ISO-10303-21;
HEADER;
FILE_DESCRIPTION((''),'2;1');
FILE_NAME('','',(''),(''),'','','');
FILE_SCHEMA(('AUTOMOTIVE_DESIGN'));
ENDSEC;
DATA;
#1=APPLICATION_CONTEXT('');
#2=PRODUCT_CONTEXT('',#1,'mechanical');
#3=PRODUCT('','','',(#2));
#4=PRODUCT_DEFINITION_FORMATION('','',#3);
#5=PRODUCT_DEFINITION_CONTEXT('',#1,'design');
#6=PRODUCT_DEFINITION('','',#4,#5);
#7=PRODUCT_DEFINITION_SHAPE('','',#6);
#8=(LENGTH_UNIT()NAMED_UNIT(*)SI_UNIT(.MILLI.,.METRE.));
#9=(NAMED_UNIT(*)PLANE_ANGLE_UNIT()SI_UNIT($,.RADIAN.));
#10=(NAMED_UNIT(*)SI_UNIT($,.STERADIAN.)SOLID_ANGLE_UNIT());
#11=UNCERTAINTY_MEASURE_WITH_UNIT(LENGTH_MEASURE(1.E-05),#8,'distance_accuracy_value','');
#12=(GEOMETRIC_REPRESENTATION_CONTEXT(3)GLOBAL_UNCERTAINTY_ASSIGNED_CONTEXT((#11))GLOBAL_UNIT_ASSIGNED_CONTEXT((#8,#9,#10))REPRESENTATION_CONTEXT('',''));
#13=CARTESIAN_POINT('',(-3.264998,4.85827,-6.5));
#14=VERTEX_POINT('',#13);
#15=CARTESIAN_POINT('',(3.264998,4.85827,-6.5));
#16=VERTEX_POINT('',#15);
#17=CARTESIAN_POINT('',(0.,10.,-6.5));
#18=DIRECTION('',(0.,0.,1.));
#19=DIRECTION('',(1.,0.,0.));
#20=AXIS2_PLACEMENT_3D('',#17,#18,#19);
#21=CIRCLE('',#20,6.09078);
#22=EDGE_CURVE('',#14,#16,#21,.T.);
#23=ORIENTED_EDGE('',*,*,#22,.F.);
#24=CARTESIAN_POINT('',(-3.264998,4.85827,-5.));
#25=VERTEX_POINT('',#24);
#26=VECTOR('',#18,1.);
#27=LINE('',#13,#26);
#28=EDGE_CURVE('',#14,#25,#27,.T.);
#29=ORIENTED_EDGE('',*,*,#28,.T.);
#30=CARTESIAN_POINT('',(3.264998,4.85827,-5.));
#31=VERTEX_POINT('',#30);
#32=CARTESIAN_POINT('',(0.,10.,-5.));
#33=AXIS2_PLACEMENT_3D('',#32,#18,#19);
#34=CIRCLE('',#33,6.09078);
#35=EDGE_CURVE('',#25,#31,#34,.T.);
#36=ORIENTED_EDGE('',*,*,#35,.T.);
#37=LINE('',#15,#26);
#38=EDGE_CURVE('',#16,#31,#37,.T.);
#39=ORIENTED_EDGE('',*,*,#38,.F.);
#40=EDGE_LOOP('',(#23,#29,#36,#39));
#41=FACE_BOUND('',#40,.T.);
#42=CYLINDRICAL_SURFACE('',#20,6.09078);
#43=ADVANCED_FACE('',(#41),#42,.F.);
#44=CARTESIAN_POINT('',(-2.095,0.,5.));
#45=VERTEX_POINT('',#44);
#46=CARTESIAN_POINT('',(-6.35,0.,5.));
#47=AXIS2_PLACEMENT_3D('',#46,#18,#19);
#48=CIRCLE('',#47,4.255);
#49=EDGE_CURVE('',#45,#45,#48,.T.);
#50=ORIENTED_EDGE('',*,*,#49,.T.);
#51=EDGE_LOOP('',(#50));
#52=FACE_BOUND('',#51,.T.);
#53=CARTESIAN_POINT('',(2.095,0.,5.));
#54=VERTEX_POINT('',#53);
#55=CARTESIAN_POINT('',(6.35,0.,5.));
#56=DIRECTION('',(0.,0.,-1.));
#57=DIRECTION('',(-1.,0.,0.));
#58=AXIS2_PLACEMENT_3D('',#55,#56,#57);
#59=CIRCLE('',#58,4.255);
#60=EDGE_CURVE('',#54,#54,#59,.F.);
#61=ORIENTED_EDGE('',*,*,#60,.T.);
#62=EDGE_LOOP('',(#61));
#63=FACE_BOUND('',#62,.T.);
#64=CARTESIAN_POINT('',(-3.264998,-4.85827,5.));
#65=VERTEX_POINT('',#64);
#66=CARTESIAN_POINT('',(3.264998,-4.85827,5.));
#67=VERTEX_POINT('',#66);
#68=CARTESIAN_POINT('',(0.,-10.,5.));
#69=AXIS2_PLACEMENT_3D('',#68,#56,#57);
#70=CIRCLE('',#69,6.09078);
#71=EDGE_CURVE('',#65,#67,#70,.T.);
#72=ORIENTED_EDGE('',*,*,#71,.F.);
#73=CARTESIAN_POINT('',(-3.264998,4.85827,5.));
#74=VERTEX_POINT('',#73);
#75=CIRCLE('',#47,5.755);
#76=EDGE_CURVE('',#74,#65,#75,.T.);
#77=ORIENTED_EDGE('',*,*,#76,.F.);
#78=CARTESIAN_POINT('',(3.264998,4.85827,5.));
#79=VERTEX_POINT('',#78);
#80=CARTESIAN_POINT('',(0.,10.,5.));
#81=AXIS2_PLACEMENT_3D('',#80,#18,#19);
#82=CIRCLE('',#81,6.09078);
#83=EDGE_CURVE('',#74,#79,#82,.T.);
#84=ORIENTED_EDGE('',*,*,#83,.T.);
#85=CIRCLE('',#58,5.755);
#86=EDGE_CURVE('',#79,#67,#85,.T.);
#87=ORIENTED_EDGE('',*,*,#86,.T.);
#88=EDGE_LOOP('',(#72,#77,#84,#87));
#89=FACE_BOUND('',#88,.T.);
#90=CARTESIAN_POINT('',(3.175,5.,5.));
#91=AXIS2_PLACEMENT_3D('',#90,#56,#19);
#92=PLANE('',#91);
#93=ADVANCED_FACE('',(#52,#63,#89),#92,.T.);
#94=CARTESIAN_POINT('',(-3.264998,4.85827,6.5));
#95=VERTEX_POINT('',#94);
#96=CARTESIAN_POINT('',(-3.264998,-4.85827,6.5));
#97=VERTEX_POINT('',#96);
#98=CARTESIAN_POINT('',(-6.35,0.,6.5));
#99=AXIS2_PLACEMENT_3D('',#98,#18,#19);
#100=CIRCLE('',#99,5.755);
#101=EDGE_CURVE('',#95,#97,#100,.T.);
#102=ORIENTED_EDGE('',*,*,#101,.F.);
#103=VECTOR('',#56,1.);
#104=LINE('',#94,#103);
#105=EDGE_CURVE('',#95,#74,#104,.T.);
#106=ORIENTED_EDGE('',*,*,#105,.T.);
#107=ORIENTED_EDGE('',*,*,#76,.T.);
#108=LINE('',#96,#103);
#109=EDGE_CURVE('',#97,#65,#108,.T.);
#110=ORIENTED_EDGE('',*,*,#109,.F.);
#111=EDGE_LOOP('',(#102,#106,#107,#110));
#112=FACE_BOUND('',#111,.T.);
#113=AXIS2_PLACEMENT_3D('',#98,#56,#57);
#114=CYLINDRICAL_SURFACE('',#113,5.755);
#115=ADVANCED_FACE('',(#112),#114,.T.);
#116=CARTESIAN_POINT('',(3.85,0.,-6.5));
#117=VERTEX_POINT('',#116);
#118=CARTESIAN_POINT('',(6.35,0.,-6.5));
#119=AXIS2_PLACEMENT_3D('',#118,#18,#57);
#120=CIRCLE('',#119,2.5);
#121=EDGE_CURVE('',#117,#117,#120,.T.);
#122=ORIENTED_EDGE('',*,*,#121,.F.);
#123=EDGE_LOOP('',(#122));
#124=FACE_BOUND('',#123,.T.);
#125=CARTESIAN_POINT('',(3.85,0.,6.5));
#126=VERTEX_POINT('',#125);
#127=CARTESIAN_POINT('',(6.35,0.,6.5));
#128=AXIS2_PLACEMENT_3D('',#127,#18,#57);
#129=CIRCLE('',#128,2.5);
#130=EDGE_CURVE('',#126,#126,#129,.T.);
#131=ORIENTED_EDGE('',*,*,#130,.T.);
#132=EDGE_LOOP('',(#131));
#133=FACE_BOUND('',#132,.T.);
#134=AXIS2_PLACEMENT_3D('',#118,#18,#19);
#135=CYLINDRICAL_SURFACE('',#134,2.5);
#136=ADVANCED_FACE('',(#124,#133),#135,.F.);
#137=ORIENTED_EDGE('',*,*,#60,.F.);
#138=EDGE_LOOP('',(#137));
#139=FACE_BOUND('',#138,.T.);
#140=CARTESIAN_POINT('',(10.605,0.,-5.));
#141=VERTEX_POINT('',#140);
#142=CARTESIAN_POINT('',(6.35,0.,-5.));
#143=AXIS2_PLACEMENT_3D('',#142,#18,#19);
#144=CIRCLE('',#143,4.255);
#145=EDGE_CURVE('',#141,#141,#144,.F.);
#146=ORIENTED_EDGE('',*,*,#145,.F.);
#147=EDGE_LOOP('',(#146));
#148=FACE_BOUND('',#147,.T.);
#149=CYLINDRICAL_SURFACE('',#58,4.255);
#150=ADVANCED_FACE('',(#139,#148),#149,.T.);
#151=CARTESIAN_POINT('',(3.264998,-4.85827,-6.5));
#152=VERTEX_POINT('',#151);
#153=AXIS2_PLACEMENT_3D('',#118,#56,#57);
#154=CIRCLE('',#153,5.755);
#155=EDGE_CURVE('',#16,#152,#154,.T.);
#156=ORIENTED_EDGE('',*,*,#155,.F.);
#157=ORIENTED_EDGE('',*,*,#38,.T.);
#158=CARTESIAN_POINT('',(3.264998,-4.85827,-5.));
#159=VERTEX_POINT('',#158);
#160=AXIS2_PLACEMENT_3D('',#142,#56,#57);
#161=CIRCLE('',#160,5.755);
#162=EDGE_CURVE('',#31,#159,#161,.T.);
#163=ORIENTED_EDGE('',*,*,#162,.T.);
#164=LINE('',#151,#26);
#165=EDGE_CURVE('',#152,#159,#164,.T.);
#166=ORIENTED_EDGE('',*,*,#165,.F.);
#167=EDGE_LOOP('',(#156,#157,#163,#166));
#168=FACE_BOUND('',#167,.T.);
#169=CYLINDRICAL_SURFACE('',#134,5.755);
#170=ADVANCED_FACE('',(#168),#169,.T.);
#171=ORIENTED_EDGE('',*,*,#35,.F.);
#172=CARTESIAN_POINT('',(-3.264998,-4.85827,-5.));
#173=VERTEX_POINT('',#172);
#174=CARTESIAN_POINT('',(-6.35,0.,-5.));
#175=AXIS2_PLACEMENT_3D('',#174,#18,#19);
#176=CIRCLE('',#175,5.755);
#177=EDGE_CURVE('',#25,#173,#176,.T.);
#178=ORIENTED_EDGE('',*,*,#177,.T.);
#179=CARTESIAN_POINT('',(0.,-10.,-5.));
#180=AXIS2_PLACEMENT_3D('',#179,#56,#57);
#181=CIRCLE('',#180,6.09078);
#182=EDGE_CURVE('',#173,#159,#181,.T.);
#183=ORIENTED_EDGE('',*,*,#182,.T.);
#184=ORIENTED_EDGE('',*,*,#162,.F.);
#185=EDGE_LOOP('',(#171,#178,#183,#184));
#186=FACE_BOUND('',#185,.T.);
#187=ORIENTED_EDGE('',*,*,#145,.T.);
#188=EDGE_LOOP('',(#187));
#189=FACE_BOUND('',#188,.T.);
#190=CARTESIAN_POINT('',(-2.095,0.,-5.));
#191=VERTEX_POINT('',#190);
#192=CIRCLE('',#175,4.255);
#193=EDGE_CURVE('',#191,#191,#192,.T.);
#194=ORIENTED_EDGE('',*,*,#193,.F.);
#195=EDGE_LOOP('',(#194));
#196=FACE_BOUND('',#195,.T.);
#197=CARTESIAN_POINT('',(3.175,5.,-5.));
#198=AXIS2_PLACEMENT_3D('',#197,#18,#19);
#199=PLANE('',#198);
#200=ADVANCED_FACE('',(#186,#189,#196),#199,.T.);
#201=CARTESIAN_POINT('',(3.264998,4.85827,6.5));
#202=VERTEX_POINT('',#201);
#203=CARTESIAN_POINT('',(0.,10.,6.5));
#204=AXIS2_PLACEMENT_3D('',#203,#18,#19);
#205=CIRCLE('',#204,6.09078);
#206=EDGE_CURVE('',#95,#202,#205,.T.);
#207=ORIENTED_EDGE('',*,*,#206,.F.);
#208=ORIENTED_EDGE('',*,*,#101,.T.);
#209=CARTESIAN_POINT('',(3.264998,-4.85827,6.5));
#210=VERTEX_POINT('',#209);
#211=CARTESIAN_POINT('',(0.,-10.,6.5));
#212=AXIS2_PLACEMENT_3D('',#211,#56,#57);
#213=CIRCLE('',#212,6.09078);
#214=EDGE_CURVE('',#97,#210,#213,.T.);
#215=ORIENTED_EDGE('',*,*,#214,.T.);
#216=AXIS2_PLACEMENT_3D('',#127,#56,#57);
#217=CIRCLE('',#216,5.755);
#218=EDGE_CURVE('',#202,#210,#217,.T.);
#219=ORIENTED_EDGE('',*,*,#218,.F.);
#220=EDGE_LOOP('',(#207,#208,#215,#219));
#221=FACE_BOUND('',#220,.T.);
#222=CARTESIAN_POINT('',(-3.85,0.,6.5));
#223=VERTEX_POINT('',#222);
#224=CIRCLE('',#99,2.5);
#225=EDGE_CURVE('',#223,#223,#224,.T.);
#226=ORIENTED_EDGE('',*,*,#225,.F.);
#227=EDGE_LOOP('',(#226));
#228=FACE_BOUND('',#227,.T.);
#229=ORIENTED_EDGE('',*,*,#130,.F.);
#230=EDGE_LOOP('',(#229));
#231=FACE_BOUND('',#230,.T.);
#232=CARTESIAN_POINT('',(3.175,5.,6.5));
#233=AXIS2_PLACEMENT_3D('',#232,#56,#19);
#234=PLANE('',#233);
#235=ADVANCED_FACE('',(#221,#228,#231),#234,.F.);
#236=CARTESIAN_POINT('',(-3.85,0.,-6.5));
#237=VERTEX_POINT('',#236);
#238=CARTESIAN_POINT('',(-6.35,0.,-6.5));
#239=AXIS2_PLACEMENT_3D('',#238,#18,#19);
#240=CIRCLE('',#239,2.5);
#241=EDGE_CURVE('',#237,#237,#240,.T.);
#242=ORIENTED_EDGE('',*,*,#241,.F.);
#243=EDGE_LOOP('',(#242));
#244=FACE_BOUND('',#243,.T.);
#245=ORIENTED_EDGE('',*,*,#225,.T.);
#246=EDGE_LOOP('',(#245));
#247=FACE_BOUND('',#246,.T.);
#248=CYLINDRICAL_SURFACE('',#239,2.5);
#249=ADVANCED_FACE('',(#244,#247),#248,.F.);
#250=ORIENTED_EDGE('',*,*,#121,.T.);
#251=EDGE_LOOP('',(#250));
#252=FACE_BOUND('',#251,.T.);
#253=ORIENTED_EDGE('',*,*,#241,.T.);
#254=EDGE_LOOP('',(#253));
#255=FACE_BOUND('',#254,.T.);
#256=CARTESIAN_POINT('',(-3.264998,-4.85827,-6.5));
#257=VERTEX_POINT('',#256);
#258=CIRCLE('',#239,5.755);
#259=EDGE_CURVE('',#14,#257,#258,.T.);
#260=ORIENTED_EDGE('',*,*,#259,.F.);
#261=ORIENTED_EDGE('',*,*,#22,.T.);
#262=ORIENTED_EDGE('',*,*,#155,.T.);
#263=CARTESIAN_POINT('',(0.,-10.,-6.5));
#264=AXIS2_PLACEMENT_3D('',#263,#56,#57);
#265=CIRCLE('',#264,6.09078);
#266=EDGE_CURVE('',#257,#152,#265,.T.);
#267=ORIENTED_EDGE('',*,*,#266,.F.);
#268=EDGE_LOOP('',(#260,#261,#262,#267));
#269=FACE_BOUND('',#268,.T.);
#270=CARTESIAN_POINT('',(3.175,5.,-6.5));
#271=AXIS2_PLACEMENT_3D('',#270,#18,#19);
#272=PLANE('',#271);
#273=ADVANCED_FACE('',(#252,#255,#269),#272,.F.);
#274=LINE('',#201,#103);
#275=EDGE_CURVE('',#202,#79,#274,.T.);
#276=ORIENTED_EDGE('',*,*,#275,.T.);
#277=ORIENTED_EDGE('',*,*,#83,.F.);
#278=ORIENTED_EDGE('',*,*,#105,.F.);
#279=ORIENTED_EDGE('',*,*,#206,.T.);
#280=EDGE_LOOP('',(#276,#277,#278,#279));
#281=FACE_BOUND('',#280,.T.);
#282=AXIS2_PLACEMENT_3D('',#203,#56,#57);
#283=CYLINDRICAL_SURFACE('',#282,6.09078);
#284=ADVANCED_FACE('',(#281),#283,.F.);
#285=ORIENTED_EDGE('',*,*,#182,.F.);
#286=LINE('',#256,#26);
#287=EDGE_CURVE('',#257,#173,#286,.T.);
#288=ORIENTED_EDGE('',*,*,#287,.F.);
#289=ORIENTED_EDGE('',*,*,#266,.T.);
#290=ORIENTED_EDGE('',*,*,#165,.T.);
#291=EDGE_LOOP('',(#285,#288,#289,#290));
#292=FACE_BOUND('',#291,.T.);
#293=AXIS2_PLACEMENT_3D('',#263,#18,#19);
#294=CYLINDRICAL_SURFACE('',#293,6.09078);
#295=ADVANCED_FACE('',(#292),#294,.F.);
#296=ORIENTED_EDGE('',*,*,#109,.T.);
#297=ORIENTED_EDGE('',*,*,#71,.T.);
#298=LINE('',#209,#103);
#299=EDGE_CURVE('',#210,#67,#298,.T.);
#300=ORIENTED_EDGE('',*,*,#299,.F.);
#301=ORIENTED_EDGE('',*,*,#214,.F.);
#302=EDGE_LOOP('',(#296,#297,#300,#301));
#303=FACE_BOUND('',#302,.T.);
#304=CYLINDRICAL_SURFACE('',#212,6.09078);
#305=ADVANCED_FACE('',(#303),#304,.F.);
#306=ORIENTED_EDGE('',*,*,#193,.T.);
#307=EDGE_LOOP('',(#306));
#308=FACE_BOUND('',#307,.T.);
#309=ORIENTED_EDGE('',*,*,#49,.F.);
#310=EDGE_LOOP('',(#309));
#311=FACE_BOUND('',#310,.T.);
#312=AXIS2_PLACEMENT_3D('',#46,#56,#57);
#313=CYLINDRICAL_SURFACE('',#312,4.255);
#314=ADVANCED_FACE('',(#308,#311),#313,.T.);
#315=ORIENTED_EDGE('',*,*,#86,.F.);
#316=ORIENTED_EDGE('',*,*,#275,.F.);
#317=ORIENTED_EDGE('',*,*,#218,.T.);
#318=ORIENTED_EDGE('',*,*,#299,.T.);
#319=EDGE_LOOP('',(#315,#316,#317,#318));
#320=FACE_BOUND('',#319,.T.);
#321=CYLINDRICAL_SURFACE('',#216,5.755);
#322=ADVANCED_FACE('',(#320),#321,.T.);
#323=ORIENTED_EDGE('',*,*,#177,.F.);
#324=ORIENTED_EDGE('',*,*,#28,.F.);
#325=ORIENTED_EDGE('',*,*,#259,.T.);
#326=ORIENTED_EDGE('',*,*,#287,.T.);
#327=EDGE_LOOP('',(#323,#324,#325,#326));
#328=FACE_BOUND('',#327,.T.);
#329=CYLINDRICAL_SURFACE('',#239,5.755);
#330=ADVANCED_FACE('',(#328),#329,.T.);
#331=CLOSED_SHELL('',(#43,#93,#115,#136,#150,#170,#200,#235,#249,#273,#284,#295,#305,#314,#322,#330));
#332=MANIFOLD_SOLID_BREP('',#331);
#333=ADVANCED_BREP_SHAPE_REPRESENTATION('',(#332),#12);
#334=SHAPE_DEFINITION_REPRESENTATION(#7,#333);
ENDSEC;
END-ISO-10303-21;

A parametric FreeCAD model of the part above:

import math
import FreeCAD as App
import Part
import Sketcher
from FreeCAD import Vector
Q = App.Units.Quantity

doc = App.newDocument("Part")
body = doc.addObject("PartDesign::Body", "Body")

# Sketch on XY plane
sketch1 = doc.addObject("Sketcher::SketchObject", "Sketch")
body.addObject(sketch1)
sketch1.AttachmentSupport = (doc.XY_Plane, [""])
sketch1.MapMode = "FlatFace"
sketch1.addGeometry(Part.Circle(Vector(6.35, 0, 0), Vector(0, 0, 1), 4.255), False)
sketch1.addConstraint([
    Sketcher.Constraint("PointOnObject", 0, 3, -1),
    Sketcher.Constraint("Diameter", 0, Q("8.51 mm")),
    Sketcher.Constraint("DistanceX", -1, 1, 0, 3, Q("6.35 mm")),
])
pad1 = doc.addObject("PartDesign::Pad", "Pad")
body.addObject(pad1)
pad1.Profile = sketch1
pad1.Length = 10
pad1.Midplane = True
body2 = doc.addObject("PartDesign::Body", "Body001")

# Sketch on XY plane
sketch2 = doc.addObject("Sketcher::SketchObject", "Sketch001")
body2.addObject(sketch2)
sketch2.AttachmentSupport = (doc.getObject("XY_Plane001"), [""])
sketch2.MapMode = "FlatFace"
sketch2.addGeometry(Part.Circle(Vector(-6.35, 0, 0), Vector(0, 0, 1), 4.255), False)
sketch2.addConstraint([
    Sketcher.Constraint("PointOnObject", 0, 3, -1),
    Sketcher.Constraint("Diameter", 0, Q("8.51 mm")),
    Sketcher.Constraint("DistanceX", 0, 3, -1, 1, Q("6.35 mm")),
])
pad2 = doc.addObject("PartDesign::Pad", "Pad001")
body2.addObject(pad2)
pad2.Profile = sketch2
pad2.Length = 10
pad2.Midplane = True
body.AllowCompound = True
doc.recompute()

boolean = doc.addObject("PartDesign::Boolean", "Boolean")
body.addObject(boolean)
boolean.Type = "Fuse"
boolean.addObjects([body2])

# Sketch on XY plane
sketch3 = doc.addObject("Sketcher::SketchObject", "Sketch002")
body.addObject(sketch3)
sketch3.AttachmentSupport = (doc.XY_Plane, [""])
sketch3.MapMode = "FlatFace"
sketch3.AttachmentOffset = App.Placement(Vector(0, 0, -5), App.Rotation())
sketch3.addGeometry([
    Part.ArcOfCircle(Part.Circle(Vector(-6.35, 0, 0), Vector(0, 0, 1), 5.755), math.radians(57.584453), math.radians(302.415547)),
    Part.ArcOfCircle(Part.Circle(Vector(0, -10, 0), Vector(0, 0, 1), 6.09078), math.radians(57.584453), math.radians(122.415547)),
    Part.ArcOfCircle(Part.Circle(Vector(6.35, 0, 0), Vector(0, 0, 1), 5.755), math.radians(-122.415547), math.radians(122.415547)),
    Part.ArcOfCircle(Part.Circle(Vector(0, 10, 0), Vector(0, 0, 1), 6.09078), math.radians(-122.415547), math.radians(-57.584453)),
], False)
sketch3.addConstraint([
    Sketcher.Constraint("Tangent", 0, 2, 1, 2),
    Sketcher.Constraint("Tangent", 1, 1, 2, 1),
    Sketcher.Constraint("Tangent", 2, 2, 3, 2),
    Sketcher.Constraint("Tangent", 3, 1, 0, 1),
    Sketcher.Constraint("Equal", 0, 2),
    Sketcher.Constraint("Equal", 1, 3),
    Sketcher.Constraint("Symmetric", 0, 3, 2, 3, -1, 1),
    Sketcher.Constraint("PointOnObject", 0, 3, -1),
    Sketcher.Constraint("DistanceY", 1, 3, -1, 1, Q("10 mm")),
    Sketcher.Constraint("Radius", 0, Q("5.755 mm")),
    Sketcher.Constraint("DistanceX", 0, 3, 2, 3, Q("12.7 mm")),
])
pad3 = doc.addObject("PartDesign::Pad", "Pad002")
body.addObject(pad3)
pad3.Profile = sketch3
pad3.Length = 1.5
pad3.Reversed = True
doc.recompute()

mirrored = doc.addObject("PartDesign::Mirrored", "Mirrored")
body.addObject(mirrored)
mirrored.Originals = [pad3]
mirrored.MirrorPlane = (doc.XY_Plane, [""])
body.Tip = mirrored

# Sketch on XY plane
sketch4 = doc.addObject("Sketcher::SketchObject", "Sketch003")
body.addObject(sketch4)
sketch4.AttachmentSupport = (doc.XY_Plane, [""])
sketch4.MapMode = "FlatFace"
sketch4.addGeometry([
    Part.Circle(Vector(-6.35, 0, 0), Vector(0, 0, 1), 2.5),
    Part.Circle(Vector(6.35, 0, 0), Vector(0, 0, 1), 2.5),
], False)
sketch4.addConstraint([
    Sketcher.Constraint("Equal", 0, 1),
    Sketcher.Constraint("Symmetric", 0, 3, 1, 3, -1, 1),
    Sketcher.Constraint("PointOnObject", 0, 3, -1),
    Sketcher.Constraint("Diameter", 0, Q("5 mm")),
    Sketcher.Constraint("DistanceX", 0, 3, 1, 3, Q("12.7 mm")),
])
pocket1 = doc.addObject("PartDesign::Pocket", "Pocket")
body.addObject(pocket1)
pocket1.Profile = sketch4
pocket1.Type = "ThroughAll"
pocket1.Midplane = True

doc.recompute()
